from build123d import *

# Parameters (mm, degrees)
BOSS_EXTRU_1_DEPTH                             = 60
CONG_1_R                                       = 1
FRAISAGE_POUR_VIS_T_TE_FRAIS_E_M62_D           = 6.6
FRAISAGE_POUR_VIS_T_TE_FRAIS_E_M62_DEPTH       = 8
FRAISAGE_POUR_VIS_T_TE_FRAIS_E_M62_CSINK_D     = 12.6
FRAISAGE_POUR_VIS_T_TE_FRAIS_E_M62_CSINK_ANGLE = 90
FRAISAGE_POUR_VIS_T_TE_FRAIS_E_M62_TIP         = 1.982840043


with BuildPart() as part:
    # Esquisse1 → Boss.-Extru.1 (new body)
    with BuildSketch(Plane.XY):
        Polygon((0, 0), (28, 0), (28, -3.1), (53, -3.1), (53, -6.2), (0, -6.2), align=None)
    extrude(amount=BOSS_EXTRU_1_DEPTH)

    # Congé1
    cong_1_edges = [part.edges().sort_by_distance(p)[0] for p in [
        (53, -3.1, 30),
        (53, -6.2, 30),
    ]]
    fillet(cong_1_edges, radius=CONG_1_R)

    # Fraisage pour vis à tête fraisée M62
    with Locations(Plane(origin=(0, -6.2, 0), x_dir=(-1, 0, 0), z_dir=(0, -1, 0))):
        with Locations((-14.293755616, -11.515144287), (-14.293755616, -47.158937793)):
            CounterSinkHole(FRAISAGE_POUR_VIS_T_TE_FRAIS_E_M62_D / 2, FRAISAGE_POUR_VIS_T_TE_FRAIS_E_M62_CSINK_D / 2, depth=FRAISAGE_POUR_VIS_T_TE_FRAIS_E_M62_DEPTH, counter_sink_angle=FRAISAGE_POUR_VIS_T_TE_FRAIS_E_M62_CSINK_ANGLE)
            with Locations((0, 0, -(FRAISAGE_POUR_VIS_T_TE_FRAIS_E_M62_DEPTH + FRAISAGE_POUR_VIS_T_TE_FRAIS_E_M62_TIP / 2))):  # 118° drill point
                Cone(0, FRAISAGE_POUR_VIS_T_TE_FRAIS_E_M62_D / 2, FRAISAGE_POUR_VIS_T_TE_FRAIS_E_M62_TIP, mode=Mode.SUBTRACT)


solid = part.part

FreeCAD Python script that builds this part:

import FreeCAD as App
import Part
import Sketcher

V = App.Vector
Q = App.Units.Quantity


def edges_at(feature, points):
    """Names of the edges that pass closest to the given points."""
    edges = feature.Shape.Edges
    near = lambda p: min(range(len(edges)), key=lambda i: edges[i].distToShape(Part.Vertex(*p))[0])
    return sorted({f"Edge{near(p) + 1}" for p in points})


def add_polygon(sketch, points):
    """Adds a closed chain of lines whose ends are joined by coincident constraints."""
    first, n = sketch.GeometryCount, len(points)
    for a, b in zip(points, points[1:] + points[:1]):
        sketch.addGeometry(Part.LineSegment(App.Vector(*a, 0), App.Vector(*b, 0)), False)
    for i in range(n):
        sketch.addConstraint(Sketcher.Constraint("Coincident", first + i, 2, first + (i + 1) % n, 1))

doc = App.newDocument("Part")
params = doc.addObject("Spreadsheet::Sheet", "Params")
for row, (alias, value) in enumerate([
    ("sketch1_width", "28 mm"),
    ("sketch1_width2", "53 mm"),
    ("sketch1_height", "6.2 mm"),
    ("pad1_length", "60 mm"),
    ("fillet_radius", "1 mm"),
    ("sketch2_diameter", "6.6 mm"),
    ("hole_diameter", "6.6 mm"),
    ("hole_depth", "8 mm"),
    ("hole_csink_diameter", "12.6 mm"),
], start=1):
    params.set(f"A{row}", alias)
    params.set(f"B{row}", "=" + value)
    params.setAlias(f"B{row}", alias)

body = doc.addObject("PartDesign::Body", "Body")

# Sketch on XY plane
sketch1 = body.newObject("Sketcher::SketchObject", "Sketch")
sketch1.AttachmentSupport = (doc.getObject("XY_Plane"), [""])
sketch1.MapMode = "FlatFace"
add_polygon(sketch1, [(28, 0), (0, 0), (0, -6.2), (53, -6.2), (53, -3.1), (28, -3.1)])  # lines 0-5
sketch1.addConstraint([
    Sketcher.Constraint("Horizontal", 0),
    Sketcher.Constraint("Vertical", 1),
    Sketcher.Constraint("Horizontal", 2),
    Sketcher.Constraint("Vertical", 3),
    Sketcher.Constraint("Horizontal", 4),
    Sketcher.Constraint("Vertical", 5),
    Sketcher.Constraint("Coincident", 0, 2, -1, 1),
    Sketcher.Constraint("Equal", 3, 5),
    Sketcher.Constraint("DistanceX", 0, 2, 0, 1, Q("28 mm")),
    Sketcher.Constraint("DistanceX", 2, 1, 2, 2, Q("53 mm")),
    Sketcher.Constraint("DistanceY", 1, 2, 1, 1, Q("6.2 mm")),
])
sketch1.setExpression("Constraints[14]", "Params.sketch1_width")
sketch1.setExpression("Constraints[15]", "Params.sketch1_width2")
sketch1.setExpression("Constraints[16]", "Params.sketch1_height")
pad1 = body.newObject("PartDesign::Pad", "Pad")
pad1.Profile = sketch1
pad1.setExpression("Length", "Params.pad1_length")
doc.recompute()

fillet = body.newObject("PartDesign::Fillet", "Fillet")
fillet.Base = (pad1, edges_at(pad1, [(53, -3.1, 30), (53, -6.2, 30)]))
fillet.setExpression("Radius", "Params.fillet_radius")

# Sketch on XZ plane
sketch2 = body.newObject("Sketcher::SketchObject", "Sketch001")
sketch2.AttachmentSupport = (doc.getObject("XZ_Plane"), [""])
sketch2.MapMode = "FlatFace"
sketch2.AttachmentOffset = App.Placement(V(0, 0, 6.2), App.Rotation())
sketch2.addGeometry([
    Part.Circle(V(14.293756, 11.515144, 0), V(0, 0, 1), 3.3),
    Part.Circle(V(14.293756, 47.158938, 0), V(0, 0, 1), 3.3),
], False)
sketch2.addConstraint([
    Sketcher.Constraint("Equal", 0, 1),
    Sketcher.Constraint("Vertical", 0, 3, 1, 3),
    Sketcher.Constraint("Diameter", 0, Q("6.6 mm")),
    Sketcher.Constraint("DistanceX", -1, 1, 0, 3, Q("14.293756 mm")),
    Sketcher.Constraint("DistanceY", -1, 1, 0, 3, Q("11.515144 mm")),
    Sketcher.Constraint("DistanceY", -1, 1, 1, 3, Q("47.158938 mm")),
])
sketch2.setExpression("Constraints[2]", "Params.sketch2_diameter")
doc.recompute()
hole = body.newObject("PartDesign::Hole", "Hole")
hole.Profile = sketch2
hole.ThreadType = "None"
hole.setExpression("Diameter", "Params.hole_diameter")
hole.DepthType = "Dimension"
hole.setExpression("Depth", "Params.hole_depth")
hole.DrillPoint = "Angled"
hole.DrillPointAngle = 118
hole.HoleCutType = "Countersink"
hole.setExpression("HoleCutDiameter", "Params.hole_csink_diameter")
hole.HoleCutCountersinkAngle = 90

doc.recompute()
